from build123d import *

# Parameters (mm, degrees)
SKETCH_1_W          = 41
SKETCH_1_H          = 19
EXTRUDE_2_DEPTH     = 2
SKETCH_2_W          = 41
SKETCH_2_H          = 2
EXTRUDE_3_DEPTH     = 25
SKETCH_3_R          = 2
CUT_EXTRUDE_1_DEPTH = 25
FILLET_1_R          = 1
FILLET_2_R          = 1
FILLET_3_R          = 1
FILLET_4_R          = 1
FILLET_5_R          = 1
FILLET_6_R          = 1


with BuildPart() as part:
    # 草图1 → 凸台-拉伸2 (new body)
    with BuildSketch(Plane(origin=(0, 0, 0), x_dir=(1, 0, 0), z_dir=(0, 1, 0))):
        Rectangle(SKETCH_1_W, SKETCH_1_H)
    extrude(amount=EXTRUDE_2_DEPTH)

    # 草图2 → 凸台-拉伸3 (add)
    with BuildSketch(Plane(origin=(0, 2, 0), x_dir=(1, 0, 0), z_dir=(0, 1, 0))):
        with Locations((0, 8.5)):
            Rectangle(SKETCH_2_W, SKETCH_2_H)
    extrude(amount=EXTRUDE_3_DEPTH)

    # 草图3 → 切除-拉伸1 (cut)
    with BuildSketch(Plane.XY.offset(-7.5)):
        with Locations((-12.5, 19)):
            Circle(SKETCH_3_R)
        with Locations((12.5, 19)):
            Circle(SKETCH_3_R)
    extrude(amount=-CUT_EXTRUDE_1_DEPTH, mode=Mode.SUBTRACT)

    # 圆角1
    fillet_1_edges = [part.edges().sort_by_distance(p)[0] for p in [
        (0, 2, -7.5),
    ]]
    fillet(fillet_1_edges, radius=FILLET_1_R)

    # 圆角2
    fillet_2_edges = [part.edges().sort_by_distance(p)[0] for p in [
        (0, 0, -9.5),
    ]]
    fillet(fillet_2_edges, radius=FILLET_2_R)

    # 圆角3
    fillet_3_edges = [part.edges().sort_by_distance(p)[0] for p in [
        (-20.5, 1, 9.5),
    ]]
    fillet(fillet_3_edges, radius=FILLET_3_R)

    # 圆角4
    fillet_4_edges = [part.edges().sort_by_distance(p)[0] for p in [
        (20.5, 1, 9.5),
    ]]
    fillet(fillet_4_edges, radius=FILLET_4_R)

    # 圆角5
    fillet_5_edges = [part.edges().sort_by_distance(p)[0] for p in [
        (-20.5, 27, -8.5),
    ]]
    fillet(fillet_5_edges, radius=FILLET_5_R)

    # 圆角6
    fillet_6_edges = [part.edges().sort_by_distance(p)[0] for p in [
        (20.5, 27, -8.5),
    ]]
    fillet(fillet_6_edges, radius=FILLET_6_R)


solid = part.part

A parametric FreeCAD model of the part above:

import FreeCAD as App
import Part
import Sketcher


def edges_at(feature, points):
    """Names of the edges that pass closest to the given points."""
    edges = feature.Shape.Edges
    near = lambda p: min(range(len(edges)), key=lambda i: edges[i].distToShape(Part.Vertex(*p))[0])
    return sorted({f"Edge{near(p) + 1}" for p in points})


def add_polygon(sketch, points):
    """Adds a closed chain of lines whose ends are joined by coincident constraints."""
    first, n = sketch.GeometryCount, len(points)
    for a, b in zip(points, points[1:] + points[:1]):
        sketch.addGeometry(Part.LineSegment(App.Vector(*a, 0), App.Vector(*b, 0)), False)
    for i in range(n):
        sketch.addConstraint(Sketcher.Constraint("Coincident", first + i, 2, first + (i + 1) % n, 1))

doc = App.newDocument("Part")
params = doc.addObject("Spreadsheet::Sheet", "Params")
for row, (alias, value) in enumerate([
    ("sketch1_width", "41 mm"),
    ("sketch1_height", "19 mm"),
    ("pad1_length", "2 mm"),
    ("sketch2_width", "41 mm"),
    ("sketch2_height", "2 mm"),
    ("pad2_length", "25 mm"),
    ("sketch3_diameter", "4 mm"),
    ("pocket1_length", "25 mm"),
    ("fillet_radius", "1 mm"),
    ("fillet2_radius", "1 mm"),
    ("fillet3_radius", "1 mm"),
    ("fillet4_radius", "1 mm"),
    ("fillet5_radius", "1 mm"),
    ("fillet6_radius", "1 mm"),
], start=1):
    params.set(f"A{row}", alias)
    params.set(f"B{row}", "=" + value)
    params.setAlias(f"B{row}", alias)

body = doc.addObject("PartDesign::Body", "Body")

# Sketch on XZ plane
sketch1 = doc.addObject("Sketcher::SketchObject", "Sketch")
body.addObject(sketch1)
sketch1.AttachmentSupport = (doc.XZ_Plane, [""])
sketch1.MapMode = "FlatFace"
add_polygon(sketch1, [(-20, -10), (-20, 10), (20, 10), (20, -10)])  # lines 0-3
sketch1.addConstraint(Sketcher.Constraint("Vertical", 0))
sketch1.addConstraint(Sketcher.Constraint("Horizontal", 1))
sketch1.addConstraint(Sketcher.Constraint("Vertical", 2))
sketch1.addConstraint(Sketcher.Constraint("Horizontal", 3))
sketch1.addConstraint(Sketcher.Constraint("Symmetric", 0, 2, 2, 2, -1, 1))
sketch1.addConstraint(Sketcher.Constraint("DistanceX", 1, 1, 1, 2, 41.0))
sketch1.addConstraint(Sketcher.Constraint("DistanceY", 0, 1, 0, 2, 19.0))
sketch1.setExpression("Constraints[9]", "Params.sketch1_width")
sketch1.setExpression("Constraints[10]", "Params.sketch1_height")
pad1 = doc.addObject("PartDesign::Pad", "Pad")
body.addObject(pad1)
pad1.Profile = sketch1
pad1.setExpression("Length", "Params.pad1_length")
pad1.Reversed = True

# Sketch on XZ plane
sketch2 = doc.addObject("Sketcher::SketchObject", "Sketch001")
body.addObject(sketch2)
sketch2.AttachmentSupport = (doc.XZ_Plane, [""])
sketch2.MapMode = "FlatFace"
sketch2.AttachmentOffset = App.Placement(App.Vector(0, 0, -2), App.Rotation())
add_polygon(sketch2, [(-20.5, -9.5), (-20.5, -7.5), (20.5, -7.5), (20.5, -9.5)])  # lines 0-3
sketch2.addConstraint(Sketcher.Constraint("Vertical", 0))
sketch2.addConstraint(Sketcher.Constraint("Horizontal", 1))
sketch2.addConstraint(Sketcher.Constraint("Vertical", 2))
sketch2.addConstraint(Sketcher.Constraint("Horizontal", 3))
sketch2.addConstraint(Sketcher.Constraint("DistanceX", 1, 1, 1, 2, 41.0))
sketch2.addConstraint(Sketcher.Constraint("DistanceY", 0, 1, 0, 2, 2.0))
sketch2.addConstraint(Sketcher.Constraint("DistanceX", 0, 2, -1, 1, 20.5))
sketch2.addConstraint(Sketcher.Constraint("DistanceY", 0, 2, -1, 1, 7.5))
sketch2.setExpression("Constraints[8]", "Params.sketch2_width")
sketch2.setExpression("Constraints[9]", "Params.sketch2_height")
pad2 = doc.addObject("PartDesign::Pad", "Pad001")
body.addObject(pad2)
pad2.Profile = sketch2
pad2.setExpression("Length", "Params.pad2_length")
pad2.Reversed = True

# Sketch on XY plane
sketch3 = doc.addObject("Sketcher::SketchObject", "Sketch002")
body.addObject(sketch3)
sketch3.AttachmentSupport = (doc.XY_Plane, [""])
sketch3.MapMode = "FlatFace"
sketch3.AttachmentOffset = App.Placement(App.Vector(0, 0, -7.5), App.Rotation())
sketch3.addGeometry(Part.Circle(App.Vector(-12.5, 19, 0), App.Vector(0, 0, 1), 2), False)
sketch3.addGeometry(Part.Circle(App.Vector(12.5, 19, 0), App.Vector(0, 0, 1), 2), False)
sketch3.addConstraint(Sketcher.Constraint("Equal", 0, 1))
sketch3.addConstraint(Sketcher.Constraint("Symmetric", 0, 3, 1, 3, -2))
sketch3.addConstraint(Sketcher.Constraint("Diameter", 0, 4.0))
sketch3.addConstraint(Sketcher.Constraint("DistanceY", -1, 1, 0, 3, 19.0))
sketch3.addConstraint(Sketcher.Constraint("DistanceX", 0, 3, 1, 3, 25.0))
sketch3.setExpression("Constraints[2]", "Params.sketch3_diameter")
pocket1 = doc.addObject("PartDesign::Pocket", "Pocket")
body.addObject(pocket1)
pocket1.Profile = sketch3
pocket1.setExpression("Length", "Params.pocket1_length")
doc.recompute()

fillet = doc.addObject("PartDesign::Fillet", "Fillet")
body.addObject(fillet)
fillet.Base = (pocket1, edges_at(pocket1, [(0, 2, -7.5)]))
fillet.setExpression("Radius", "Params.fillet_radius")
doc.recompute()

fillet2 = doc.addObject("PartDesign::Fillet", "Fillet001")
body.addObject(fillet2)
fillet2.Base = (fillet, edges_at(fillet, [(0, 0, -9.5)]))
fillet2.setExpression("Radius", "Params.fillet2_radius")
doc.recompute()

fillet3 = doc.addObject("PartDesign::Fillet", "Fillet002")
body.addObject(fillet3)
fillet3.Base = (fillet2, edges_at(fillet2, [(-20.5, 1, 9.5)]))
fillet3.setExpression("Radius", "Params.fillet3_radius")
doc.recompute()

fillet4 = doc.addObject("PartDesign::Fillet", "Fillet003")
body.addObject(fillet4)
fillet4.Base = (fillet3, edges_at(fillet3, [(20.5, 1, 9.5)]))
fillet4.setExpression("Radius", "Params.fillet4_radius")
doc.recompute()

fillet5 = doc.addObject("PartDesign::Fillet", "Fillet004")
body.addObject(fillet5)
fillet5.Base = (fillet4, edges_at(fillet4, [(-20.5, 27, -8.5)]))
fillet5.setExpression("Radius", "Params.fillet5_radius")
doc.recompute()

fillet6 = doc.addObject("PartDesign::Fillet", "Fillet005")
body.addObject(fillet6)
fillet6.Base = (fillet5, edges_at(fillet5, [(20.5, 27, -8.5)]))
fillet6.setExpression("Radius", "Params.fillet6_radius")

doc.recompute()
